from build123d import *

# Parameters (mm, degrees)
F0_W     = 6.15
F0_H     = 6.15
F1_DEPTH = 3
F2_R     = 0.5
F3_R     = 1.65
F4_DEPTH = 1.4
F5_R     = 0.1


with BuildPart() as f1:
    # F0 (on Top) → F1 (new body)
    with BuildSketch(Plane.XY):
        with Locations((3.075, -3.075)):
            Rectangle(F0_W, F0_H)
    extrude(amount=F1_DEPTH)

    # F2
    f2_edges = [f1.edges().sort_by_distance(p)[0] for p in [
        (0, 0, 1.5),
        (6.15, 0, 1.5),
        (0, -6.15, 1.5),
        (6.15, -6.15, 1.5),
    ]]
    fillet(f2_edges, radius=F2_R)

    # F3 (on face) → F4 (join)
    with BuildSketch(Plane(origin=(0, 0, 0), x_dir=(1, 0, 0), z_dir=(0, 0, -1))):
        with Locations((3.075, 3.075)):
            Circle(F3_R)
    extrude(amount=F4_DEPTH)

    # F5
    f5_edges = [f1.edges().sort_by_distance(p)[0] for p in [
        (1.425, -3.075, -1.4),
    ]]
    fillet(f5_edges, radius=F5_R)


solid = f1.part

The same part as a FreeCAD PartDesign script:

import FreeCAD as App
import Part
import Sketcher
from FreeCAD import Vector
Q = App.Units.Quantity


def edges_at(feature, points):
    """Names of the edges that pass closest to the given points."""
    edges = feature.Shape.Edges
    near = lambda p: min(range(len(edges)), key=lambda i: edges[i].distToShape(Part.Vertex(*p))[0])
    return sorted({f"Edge{near(p) + 1}" for p in points})

doc = App.newDocument("Part")
params = doc.addObject("Spreadsheet::Sheet", "Params")
for row, (alias, value) in enumerate([
    ("sketch1_width", "6.15 mm"),
    ("pad1_length", "3 mm"),
    ("fillet_radius", "0.5 mm"),
    ("sketch2_diameter", "3.3 mm"),
    ("pad2_length", "1.4 mm"),
    ("fillet2_radius", "0.1 mm"),
], start=1):
    params.set(f"A{row}", alias)
    params.set(f"B{row}", "=" + value)
    params.setAlias(f"B{row}", alias)

body = doc.addObject("PartDesign::Body", "Body")

# Sketch on XY plane
sketch1 = body.newObject("Sketcher::SketchObject", "Sketch")
sketch1.AttachmentSupport = (doc.getObject("XY_Plane"), [""])
sketch1.MapMode = "FlatFace"
sketch1.addGeometry([
    Part.LineSegment(Vector(0, 0, 0), Vector(0, -6.15, 0)),
    Part.LineSegment(Vector(0, -6.15, 0), Vector(6.15, -6.15, 0)),
    Part.LineSegment(Vector(6.15, -6.15, 0), Vector(6.15, 0, 0)),
    Part.LineSegment(Vector(6.15, 0, 0), Vector(0, 0, 0)),
], False)
sketch1.addConstraint([
    Sketcher.Constraint("Coincident", 0, 2, 1, 1),
    Sketcher.Constraint("Coincident", 1, 2, 2, 1),
    Sketcher.Constraint("Coincident", 2, 2, 3, 1),
    Sketcher.Constraint("Coincident", 3, 2, 0, 1),
    Sketcher.Constraint("Vertical", 0),
    Sketcher.Constraint("Horizontal", 1),
    Sketcher.Constraint("Vertical", 2),
    Sketcher.Constraint("Horizontal", 3),
    Sketcher.Constraint("Coincident", 3, 2, -1, 1),
    Sketcher.Constraint("Equal", 3, 0),
    Sketcher.Constraint("DistanceX", 1, 1, 1, 2, Q("6.15 mm")),
])
sketch1.setExpression("Constraints[10]", "Params.sketch1_width")
pad1 = body.newObject("PartDesign::Pad", "Pad")
pad1.Profile = sketch1
pad1.setExpression("Length", "Params.pad1_length")
doc.recompute()

fillet = body.newObject("PartDesign::Fillet", "Fillet")
fillet.Base = (pad1, edges_at(pad1, [
    (0, 0, 1.5),
    (6.15, 0, 1.5),
    (0, -6.15, 1.5),
    (6.15, -6.15, 1.5),
]))
fillet.setExpression("Radius", "Params.fillet_radius")

# Sketch on XY plane
sketch2 = body.newObject("Sketcher::SketchObject", "Sketch001")
sketch2.AttachmentSupport = (doc.getObject("XY_Plane"), [""])
sketch2.MapMode = "FlatFace"
sketch2.addGeometry(Part.Circle(Vector(3.075, -3.075, 0), Vector(0, 0, 1), 1.65), False)
sketch2.addConstraint([
    Sketcher.Constraint("Diameter", 0, Q("3.3 mm")),
    Sketcher.Constraint("DistanceX", -1, 1, 0, 3, Q("3.075 mm")),
    Sketcher.Constraint("DistanceY", 0, 3, -1, 1, Q("3.075 mm")),
])
sketch2.setExpression("Constraints[0]", "Params.sketch2_diameter")
pad2 = body.newObject("PartDesign::Pad", "Pad001")
pad2.Profile = sketch2
pad2.setExpression("Length", "Params.pad2_length")
pad2.Reversed = True
doc.recompute()

fillet2 = body.newObject("PartDesign::Fillet", "Fillet001")
fillet2.Base = (pad2, edges_at(pad2, [(1.425, -3.075, -1.4)]))
fillet2.setExpression("Radius", "Params.fillet2_radius")

doc.recompute()
